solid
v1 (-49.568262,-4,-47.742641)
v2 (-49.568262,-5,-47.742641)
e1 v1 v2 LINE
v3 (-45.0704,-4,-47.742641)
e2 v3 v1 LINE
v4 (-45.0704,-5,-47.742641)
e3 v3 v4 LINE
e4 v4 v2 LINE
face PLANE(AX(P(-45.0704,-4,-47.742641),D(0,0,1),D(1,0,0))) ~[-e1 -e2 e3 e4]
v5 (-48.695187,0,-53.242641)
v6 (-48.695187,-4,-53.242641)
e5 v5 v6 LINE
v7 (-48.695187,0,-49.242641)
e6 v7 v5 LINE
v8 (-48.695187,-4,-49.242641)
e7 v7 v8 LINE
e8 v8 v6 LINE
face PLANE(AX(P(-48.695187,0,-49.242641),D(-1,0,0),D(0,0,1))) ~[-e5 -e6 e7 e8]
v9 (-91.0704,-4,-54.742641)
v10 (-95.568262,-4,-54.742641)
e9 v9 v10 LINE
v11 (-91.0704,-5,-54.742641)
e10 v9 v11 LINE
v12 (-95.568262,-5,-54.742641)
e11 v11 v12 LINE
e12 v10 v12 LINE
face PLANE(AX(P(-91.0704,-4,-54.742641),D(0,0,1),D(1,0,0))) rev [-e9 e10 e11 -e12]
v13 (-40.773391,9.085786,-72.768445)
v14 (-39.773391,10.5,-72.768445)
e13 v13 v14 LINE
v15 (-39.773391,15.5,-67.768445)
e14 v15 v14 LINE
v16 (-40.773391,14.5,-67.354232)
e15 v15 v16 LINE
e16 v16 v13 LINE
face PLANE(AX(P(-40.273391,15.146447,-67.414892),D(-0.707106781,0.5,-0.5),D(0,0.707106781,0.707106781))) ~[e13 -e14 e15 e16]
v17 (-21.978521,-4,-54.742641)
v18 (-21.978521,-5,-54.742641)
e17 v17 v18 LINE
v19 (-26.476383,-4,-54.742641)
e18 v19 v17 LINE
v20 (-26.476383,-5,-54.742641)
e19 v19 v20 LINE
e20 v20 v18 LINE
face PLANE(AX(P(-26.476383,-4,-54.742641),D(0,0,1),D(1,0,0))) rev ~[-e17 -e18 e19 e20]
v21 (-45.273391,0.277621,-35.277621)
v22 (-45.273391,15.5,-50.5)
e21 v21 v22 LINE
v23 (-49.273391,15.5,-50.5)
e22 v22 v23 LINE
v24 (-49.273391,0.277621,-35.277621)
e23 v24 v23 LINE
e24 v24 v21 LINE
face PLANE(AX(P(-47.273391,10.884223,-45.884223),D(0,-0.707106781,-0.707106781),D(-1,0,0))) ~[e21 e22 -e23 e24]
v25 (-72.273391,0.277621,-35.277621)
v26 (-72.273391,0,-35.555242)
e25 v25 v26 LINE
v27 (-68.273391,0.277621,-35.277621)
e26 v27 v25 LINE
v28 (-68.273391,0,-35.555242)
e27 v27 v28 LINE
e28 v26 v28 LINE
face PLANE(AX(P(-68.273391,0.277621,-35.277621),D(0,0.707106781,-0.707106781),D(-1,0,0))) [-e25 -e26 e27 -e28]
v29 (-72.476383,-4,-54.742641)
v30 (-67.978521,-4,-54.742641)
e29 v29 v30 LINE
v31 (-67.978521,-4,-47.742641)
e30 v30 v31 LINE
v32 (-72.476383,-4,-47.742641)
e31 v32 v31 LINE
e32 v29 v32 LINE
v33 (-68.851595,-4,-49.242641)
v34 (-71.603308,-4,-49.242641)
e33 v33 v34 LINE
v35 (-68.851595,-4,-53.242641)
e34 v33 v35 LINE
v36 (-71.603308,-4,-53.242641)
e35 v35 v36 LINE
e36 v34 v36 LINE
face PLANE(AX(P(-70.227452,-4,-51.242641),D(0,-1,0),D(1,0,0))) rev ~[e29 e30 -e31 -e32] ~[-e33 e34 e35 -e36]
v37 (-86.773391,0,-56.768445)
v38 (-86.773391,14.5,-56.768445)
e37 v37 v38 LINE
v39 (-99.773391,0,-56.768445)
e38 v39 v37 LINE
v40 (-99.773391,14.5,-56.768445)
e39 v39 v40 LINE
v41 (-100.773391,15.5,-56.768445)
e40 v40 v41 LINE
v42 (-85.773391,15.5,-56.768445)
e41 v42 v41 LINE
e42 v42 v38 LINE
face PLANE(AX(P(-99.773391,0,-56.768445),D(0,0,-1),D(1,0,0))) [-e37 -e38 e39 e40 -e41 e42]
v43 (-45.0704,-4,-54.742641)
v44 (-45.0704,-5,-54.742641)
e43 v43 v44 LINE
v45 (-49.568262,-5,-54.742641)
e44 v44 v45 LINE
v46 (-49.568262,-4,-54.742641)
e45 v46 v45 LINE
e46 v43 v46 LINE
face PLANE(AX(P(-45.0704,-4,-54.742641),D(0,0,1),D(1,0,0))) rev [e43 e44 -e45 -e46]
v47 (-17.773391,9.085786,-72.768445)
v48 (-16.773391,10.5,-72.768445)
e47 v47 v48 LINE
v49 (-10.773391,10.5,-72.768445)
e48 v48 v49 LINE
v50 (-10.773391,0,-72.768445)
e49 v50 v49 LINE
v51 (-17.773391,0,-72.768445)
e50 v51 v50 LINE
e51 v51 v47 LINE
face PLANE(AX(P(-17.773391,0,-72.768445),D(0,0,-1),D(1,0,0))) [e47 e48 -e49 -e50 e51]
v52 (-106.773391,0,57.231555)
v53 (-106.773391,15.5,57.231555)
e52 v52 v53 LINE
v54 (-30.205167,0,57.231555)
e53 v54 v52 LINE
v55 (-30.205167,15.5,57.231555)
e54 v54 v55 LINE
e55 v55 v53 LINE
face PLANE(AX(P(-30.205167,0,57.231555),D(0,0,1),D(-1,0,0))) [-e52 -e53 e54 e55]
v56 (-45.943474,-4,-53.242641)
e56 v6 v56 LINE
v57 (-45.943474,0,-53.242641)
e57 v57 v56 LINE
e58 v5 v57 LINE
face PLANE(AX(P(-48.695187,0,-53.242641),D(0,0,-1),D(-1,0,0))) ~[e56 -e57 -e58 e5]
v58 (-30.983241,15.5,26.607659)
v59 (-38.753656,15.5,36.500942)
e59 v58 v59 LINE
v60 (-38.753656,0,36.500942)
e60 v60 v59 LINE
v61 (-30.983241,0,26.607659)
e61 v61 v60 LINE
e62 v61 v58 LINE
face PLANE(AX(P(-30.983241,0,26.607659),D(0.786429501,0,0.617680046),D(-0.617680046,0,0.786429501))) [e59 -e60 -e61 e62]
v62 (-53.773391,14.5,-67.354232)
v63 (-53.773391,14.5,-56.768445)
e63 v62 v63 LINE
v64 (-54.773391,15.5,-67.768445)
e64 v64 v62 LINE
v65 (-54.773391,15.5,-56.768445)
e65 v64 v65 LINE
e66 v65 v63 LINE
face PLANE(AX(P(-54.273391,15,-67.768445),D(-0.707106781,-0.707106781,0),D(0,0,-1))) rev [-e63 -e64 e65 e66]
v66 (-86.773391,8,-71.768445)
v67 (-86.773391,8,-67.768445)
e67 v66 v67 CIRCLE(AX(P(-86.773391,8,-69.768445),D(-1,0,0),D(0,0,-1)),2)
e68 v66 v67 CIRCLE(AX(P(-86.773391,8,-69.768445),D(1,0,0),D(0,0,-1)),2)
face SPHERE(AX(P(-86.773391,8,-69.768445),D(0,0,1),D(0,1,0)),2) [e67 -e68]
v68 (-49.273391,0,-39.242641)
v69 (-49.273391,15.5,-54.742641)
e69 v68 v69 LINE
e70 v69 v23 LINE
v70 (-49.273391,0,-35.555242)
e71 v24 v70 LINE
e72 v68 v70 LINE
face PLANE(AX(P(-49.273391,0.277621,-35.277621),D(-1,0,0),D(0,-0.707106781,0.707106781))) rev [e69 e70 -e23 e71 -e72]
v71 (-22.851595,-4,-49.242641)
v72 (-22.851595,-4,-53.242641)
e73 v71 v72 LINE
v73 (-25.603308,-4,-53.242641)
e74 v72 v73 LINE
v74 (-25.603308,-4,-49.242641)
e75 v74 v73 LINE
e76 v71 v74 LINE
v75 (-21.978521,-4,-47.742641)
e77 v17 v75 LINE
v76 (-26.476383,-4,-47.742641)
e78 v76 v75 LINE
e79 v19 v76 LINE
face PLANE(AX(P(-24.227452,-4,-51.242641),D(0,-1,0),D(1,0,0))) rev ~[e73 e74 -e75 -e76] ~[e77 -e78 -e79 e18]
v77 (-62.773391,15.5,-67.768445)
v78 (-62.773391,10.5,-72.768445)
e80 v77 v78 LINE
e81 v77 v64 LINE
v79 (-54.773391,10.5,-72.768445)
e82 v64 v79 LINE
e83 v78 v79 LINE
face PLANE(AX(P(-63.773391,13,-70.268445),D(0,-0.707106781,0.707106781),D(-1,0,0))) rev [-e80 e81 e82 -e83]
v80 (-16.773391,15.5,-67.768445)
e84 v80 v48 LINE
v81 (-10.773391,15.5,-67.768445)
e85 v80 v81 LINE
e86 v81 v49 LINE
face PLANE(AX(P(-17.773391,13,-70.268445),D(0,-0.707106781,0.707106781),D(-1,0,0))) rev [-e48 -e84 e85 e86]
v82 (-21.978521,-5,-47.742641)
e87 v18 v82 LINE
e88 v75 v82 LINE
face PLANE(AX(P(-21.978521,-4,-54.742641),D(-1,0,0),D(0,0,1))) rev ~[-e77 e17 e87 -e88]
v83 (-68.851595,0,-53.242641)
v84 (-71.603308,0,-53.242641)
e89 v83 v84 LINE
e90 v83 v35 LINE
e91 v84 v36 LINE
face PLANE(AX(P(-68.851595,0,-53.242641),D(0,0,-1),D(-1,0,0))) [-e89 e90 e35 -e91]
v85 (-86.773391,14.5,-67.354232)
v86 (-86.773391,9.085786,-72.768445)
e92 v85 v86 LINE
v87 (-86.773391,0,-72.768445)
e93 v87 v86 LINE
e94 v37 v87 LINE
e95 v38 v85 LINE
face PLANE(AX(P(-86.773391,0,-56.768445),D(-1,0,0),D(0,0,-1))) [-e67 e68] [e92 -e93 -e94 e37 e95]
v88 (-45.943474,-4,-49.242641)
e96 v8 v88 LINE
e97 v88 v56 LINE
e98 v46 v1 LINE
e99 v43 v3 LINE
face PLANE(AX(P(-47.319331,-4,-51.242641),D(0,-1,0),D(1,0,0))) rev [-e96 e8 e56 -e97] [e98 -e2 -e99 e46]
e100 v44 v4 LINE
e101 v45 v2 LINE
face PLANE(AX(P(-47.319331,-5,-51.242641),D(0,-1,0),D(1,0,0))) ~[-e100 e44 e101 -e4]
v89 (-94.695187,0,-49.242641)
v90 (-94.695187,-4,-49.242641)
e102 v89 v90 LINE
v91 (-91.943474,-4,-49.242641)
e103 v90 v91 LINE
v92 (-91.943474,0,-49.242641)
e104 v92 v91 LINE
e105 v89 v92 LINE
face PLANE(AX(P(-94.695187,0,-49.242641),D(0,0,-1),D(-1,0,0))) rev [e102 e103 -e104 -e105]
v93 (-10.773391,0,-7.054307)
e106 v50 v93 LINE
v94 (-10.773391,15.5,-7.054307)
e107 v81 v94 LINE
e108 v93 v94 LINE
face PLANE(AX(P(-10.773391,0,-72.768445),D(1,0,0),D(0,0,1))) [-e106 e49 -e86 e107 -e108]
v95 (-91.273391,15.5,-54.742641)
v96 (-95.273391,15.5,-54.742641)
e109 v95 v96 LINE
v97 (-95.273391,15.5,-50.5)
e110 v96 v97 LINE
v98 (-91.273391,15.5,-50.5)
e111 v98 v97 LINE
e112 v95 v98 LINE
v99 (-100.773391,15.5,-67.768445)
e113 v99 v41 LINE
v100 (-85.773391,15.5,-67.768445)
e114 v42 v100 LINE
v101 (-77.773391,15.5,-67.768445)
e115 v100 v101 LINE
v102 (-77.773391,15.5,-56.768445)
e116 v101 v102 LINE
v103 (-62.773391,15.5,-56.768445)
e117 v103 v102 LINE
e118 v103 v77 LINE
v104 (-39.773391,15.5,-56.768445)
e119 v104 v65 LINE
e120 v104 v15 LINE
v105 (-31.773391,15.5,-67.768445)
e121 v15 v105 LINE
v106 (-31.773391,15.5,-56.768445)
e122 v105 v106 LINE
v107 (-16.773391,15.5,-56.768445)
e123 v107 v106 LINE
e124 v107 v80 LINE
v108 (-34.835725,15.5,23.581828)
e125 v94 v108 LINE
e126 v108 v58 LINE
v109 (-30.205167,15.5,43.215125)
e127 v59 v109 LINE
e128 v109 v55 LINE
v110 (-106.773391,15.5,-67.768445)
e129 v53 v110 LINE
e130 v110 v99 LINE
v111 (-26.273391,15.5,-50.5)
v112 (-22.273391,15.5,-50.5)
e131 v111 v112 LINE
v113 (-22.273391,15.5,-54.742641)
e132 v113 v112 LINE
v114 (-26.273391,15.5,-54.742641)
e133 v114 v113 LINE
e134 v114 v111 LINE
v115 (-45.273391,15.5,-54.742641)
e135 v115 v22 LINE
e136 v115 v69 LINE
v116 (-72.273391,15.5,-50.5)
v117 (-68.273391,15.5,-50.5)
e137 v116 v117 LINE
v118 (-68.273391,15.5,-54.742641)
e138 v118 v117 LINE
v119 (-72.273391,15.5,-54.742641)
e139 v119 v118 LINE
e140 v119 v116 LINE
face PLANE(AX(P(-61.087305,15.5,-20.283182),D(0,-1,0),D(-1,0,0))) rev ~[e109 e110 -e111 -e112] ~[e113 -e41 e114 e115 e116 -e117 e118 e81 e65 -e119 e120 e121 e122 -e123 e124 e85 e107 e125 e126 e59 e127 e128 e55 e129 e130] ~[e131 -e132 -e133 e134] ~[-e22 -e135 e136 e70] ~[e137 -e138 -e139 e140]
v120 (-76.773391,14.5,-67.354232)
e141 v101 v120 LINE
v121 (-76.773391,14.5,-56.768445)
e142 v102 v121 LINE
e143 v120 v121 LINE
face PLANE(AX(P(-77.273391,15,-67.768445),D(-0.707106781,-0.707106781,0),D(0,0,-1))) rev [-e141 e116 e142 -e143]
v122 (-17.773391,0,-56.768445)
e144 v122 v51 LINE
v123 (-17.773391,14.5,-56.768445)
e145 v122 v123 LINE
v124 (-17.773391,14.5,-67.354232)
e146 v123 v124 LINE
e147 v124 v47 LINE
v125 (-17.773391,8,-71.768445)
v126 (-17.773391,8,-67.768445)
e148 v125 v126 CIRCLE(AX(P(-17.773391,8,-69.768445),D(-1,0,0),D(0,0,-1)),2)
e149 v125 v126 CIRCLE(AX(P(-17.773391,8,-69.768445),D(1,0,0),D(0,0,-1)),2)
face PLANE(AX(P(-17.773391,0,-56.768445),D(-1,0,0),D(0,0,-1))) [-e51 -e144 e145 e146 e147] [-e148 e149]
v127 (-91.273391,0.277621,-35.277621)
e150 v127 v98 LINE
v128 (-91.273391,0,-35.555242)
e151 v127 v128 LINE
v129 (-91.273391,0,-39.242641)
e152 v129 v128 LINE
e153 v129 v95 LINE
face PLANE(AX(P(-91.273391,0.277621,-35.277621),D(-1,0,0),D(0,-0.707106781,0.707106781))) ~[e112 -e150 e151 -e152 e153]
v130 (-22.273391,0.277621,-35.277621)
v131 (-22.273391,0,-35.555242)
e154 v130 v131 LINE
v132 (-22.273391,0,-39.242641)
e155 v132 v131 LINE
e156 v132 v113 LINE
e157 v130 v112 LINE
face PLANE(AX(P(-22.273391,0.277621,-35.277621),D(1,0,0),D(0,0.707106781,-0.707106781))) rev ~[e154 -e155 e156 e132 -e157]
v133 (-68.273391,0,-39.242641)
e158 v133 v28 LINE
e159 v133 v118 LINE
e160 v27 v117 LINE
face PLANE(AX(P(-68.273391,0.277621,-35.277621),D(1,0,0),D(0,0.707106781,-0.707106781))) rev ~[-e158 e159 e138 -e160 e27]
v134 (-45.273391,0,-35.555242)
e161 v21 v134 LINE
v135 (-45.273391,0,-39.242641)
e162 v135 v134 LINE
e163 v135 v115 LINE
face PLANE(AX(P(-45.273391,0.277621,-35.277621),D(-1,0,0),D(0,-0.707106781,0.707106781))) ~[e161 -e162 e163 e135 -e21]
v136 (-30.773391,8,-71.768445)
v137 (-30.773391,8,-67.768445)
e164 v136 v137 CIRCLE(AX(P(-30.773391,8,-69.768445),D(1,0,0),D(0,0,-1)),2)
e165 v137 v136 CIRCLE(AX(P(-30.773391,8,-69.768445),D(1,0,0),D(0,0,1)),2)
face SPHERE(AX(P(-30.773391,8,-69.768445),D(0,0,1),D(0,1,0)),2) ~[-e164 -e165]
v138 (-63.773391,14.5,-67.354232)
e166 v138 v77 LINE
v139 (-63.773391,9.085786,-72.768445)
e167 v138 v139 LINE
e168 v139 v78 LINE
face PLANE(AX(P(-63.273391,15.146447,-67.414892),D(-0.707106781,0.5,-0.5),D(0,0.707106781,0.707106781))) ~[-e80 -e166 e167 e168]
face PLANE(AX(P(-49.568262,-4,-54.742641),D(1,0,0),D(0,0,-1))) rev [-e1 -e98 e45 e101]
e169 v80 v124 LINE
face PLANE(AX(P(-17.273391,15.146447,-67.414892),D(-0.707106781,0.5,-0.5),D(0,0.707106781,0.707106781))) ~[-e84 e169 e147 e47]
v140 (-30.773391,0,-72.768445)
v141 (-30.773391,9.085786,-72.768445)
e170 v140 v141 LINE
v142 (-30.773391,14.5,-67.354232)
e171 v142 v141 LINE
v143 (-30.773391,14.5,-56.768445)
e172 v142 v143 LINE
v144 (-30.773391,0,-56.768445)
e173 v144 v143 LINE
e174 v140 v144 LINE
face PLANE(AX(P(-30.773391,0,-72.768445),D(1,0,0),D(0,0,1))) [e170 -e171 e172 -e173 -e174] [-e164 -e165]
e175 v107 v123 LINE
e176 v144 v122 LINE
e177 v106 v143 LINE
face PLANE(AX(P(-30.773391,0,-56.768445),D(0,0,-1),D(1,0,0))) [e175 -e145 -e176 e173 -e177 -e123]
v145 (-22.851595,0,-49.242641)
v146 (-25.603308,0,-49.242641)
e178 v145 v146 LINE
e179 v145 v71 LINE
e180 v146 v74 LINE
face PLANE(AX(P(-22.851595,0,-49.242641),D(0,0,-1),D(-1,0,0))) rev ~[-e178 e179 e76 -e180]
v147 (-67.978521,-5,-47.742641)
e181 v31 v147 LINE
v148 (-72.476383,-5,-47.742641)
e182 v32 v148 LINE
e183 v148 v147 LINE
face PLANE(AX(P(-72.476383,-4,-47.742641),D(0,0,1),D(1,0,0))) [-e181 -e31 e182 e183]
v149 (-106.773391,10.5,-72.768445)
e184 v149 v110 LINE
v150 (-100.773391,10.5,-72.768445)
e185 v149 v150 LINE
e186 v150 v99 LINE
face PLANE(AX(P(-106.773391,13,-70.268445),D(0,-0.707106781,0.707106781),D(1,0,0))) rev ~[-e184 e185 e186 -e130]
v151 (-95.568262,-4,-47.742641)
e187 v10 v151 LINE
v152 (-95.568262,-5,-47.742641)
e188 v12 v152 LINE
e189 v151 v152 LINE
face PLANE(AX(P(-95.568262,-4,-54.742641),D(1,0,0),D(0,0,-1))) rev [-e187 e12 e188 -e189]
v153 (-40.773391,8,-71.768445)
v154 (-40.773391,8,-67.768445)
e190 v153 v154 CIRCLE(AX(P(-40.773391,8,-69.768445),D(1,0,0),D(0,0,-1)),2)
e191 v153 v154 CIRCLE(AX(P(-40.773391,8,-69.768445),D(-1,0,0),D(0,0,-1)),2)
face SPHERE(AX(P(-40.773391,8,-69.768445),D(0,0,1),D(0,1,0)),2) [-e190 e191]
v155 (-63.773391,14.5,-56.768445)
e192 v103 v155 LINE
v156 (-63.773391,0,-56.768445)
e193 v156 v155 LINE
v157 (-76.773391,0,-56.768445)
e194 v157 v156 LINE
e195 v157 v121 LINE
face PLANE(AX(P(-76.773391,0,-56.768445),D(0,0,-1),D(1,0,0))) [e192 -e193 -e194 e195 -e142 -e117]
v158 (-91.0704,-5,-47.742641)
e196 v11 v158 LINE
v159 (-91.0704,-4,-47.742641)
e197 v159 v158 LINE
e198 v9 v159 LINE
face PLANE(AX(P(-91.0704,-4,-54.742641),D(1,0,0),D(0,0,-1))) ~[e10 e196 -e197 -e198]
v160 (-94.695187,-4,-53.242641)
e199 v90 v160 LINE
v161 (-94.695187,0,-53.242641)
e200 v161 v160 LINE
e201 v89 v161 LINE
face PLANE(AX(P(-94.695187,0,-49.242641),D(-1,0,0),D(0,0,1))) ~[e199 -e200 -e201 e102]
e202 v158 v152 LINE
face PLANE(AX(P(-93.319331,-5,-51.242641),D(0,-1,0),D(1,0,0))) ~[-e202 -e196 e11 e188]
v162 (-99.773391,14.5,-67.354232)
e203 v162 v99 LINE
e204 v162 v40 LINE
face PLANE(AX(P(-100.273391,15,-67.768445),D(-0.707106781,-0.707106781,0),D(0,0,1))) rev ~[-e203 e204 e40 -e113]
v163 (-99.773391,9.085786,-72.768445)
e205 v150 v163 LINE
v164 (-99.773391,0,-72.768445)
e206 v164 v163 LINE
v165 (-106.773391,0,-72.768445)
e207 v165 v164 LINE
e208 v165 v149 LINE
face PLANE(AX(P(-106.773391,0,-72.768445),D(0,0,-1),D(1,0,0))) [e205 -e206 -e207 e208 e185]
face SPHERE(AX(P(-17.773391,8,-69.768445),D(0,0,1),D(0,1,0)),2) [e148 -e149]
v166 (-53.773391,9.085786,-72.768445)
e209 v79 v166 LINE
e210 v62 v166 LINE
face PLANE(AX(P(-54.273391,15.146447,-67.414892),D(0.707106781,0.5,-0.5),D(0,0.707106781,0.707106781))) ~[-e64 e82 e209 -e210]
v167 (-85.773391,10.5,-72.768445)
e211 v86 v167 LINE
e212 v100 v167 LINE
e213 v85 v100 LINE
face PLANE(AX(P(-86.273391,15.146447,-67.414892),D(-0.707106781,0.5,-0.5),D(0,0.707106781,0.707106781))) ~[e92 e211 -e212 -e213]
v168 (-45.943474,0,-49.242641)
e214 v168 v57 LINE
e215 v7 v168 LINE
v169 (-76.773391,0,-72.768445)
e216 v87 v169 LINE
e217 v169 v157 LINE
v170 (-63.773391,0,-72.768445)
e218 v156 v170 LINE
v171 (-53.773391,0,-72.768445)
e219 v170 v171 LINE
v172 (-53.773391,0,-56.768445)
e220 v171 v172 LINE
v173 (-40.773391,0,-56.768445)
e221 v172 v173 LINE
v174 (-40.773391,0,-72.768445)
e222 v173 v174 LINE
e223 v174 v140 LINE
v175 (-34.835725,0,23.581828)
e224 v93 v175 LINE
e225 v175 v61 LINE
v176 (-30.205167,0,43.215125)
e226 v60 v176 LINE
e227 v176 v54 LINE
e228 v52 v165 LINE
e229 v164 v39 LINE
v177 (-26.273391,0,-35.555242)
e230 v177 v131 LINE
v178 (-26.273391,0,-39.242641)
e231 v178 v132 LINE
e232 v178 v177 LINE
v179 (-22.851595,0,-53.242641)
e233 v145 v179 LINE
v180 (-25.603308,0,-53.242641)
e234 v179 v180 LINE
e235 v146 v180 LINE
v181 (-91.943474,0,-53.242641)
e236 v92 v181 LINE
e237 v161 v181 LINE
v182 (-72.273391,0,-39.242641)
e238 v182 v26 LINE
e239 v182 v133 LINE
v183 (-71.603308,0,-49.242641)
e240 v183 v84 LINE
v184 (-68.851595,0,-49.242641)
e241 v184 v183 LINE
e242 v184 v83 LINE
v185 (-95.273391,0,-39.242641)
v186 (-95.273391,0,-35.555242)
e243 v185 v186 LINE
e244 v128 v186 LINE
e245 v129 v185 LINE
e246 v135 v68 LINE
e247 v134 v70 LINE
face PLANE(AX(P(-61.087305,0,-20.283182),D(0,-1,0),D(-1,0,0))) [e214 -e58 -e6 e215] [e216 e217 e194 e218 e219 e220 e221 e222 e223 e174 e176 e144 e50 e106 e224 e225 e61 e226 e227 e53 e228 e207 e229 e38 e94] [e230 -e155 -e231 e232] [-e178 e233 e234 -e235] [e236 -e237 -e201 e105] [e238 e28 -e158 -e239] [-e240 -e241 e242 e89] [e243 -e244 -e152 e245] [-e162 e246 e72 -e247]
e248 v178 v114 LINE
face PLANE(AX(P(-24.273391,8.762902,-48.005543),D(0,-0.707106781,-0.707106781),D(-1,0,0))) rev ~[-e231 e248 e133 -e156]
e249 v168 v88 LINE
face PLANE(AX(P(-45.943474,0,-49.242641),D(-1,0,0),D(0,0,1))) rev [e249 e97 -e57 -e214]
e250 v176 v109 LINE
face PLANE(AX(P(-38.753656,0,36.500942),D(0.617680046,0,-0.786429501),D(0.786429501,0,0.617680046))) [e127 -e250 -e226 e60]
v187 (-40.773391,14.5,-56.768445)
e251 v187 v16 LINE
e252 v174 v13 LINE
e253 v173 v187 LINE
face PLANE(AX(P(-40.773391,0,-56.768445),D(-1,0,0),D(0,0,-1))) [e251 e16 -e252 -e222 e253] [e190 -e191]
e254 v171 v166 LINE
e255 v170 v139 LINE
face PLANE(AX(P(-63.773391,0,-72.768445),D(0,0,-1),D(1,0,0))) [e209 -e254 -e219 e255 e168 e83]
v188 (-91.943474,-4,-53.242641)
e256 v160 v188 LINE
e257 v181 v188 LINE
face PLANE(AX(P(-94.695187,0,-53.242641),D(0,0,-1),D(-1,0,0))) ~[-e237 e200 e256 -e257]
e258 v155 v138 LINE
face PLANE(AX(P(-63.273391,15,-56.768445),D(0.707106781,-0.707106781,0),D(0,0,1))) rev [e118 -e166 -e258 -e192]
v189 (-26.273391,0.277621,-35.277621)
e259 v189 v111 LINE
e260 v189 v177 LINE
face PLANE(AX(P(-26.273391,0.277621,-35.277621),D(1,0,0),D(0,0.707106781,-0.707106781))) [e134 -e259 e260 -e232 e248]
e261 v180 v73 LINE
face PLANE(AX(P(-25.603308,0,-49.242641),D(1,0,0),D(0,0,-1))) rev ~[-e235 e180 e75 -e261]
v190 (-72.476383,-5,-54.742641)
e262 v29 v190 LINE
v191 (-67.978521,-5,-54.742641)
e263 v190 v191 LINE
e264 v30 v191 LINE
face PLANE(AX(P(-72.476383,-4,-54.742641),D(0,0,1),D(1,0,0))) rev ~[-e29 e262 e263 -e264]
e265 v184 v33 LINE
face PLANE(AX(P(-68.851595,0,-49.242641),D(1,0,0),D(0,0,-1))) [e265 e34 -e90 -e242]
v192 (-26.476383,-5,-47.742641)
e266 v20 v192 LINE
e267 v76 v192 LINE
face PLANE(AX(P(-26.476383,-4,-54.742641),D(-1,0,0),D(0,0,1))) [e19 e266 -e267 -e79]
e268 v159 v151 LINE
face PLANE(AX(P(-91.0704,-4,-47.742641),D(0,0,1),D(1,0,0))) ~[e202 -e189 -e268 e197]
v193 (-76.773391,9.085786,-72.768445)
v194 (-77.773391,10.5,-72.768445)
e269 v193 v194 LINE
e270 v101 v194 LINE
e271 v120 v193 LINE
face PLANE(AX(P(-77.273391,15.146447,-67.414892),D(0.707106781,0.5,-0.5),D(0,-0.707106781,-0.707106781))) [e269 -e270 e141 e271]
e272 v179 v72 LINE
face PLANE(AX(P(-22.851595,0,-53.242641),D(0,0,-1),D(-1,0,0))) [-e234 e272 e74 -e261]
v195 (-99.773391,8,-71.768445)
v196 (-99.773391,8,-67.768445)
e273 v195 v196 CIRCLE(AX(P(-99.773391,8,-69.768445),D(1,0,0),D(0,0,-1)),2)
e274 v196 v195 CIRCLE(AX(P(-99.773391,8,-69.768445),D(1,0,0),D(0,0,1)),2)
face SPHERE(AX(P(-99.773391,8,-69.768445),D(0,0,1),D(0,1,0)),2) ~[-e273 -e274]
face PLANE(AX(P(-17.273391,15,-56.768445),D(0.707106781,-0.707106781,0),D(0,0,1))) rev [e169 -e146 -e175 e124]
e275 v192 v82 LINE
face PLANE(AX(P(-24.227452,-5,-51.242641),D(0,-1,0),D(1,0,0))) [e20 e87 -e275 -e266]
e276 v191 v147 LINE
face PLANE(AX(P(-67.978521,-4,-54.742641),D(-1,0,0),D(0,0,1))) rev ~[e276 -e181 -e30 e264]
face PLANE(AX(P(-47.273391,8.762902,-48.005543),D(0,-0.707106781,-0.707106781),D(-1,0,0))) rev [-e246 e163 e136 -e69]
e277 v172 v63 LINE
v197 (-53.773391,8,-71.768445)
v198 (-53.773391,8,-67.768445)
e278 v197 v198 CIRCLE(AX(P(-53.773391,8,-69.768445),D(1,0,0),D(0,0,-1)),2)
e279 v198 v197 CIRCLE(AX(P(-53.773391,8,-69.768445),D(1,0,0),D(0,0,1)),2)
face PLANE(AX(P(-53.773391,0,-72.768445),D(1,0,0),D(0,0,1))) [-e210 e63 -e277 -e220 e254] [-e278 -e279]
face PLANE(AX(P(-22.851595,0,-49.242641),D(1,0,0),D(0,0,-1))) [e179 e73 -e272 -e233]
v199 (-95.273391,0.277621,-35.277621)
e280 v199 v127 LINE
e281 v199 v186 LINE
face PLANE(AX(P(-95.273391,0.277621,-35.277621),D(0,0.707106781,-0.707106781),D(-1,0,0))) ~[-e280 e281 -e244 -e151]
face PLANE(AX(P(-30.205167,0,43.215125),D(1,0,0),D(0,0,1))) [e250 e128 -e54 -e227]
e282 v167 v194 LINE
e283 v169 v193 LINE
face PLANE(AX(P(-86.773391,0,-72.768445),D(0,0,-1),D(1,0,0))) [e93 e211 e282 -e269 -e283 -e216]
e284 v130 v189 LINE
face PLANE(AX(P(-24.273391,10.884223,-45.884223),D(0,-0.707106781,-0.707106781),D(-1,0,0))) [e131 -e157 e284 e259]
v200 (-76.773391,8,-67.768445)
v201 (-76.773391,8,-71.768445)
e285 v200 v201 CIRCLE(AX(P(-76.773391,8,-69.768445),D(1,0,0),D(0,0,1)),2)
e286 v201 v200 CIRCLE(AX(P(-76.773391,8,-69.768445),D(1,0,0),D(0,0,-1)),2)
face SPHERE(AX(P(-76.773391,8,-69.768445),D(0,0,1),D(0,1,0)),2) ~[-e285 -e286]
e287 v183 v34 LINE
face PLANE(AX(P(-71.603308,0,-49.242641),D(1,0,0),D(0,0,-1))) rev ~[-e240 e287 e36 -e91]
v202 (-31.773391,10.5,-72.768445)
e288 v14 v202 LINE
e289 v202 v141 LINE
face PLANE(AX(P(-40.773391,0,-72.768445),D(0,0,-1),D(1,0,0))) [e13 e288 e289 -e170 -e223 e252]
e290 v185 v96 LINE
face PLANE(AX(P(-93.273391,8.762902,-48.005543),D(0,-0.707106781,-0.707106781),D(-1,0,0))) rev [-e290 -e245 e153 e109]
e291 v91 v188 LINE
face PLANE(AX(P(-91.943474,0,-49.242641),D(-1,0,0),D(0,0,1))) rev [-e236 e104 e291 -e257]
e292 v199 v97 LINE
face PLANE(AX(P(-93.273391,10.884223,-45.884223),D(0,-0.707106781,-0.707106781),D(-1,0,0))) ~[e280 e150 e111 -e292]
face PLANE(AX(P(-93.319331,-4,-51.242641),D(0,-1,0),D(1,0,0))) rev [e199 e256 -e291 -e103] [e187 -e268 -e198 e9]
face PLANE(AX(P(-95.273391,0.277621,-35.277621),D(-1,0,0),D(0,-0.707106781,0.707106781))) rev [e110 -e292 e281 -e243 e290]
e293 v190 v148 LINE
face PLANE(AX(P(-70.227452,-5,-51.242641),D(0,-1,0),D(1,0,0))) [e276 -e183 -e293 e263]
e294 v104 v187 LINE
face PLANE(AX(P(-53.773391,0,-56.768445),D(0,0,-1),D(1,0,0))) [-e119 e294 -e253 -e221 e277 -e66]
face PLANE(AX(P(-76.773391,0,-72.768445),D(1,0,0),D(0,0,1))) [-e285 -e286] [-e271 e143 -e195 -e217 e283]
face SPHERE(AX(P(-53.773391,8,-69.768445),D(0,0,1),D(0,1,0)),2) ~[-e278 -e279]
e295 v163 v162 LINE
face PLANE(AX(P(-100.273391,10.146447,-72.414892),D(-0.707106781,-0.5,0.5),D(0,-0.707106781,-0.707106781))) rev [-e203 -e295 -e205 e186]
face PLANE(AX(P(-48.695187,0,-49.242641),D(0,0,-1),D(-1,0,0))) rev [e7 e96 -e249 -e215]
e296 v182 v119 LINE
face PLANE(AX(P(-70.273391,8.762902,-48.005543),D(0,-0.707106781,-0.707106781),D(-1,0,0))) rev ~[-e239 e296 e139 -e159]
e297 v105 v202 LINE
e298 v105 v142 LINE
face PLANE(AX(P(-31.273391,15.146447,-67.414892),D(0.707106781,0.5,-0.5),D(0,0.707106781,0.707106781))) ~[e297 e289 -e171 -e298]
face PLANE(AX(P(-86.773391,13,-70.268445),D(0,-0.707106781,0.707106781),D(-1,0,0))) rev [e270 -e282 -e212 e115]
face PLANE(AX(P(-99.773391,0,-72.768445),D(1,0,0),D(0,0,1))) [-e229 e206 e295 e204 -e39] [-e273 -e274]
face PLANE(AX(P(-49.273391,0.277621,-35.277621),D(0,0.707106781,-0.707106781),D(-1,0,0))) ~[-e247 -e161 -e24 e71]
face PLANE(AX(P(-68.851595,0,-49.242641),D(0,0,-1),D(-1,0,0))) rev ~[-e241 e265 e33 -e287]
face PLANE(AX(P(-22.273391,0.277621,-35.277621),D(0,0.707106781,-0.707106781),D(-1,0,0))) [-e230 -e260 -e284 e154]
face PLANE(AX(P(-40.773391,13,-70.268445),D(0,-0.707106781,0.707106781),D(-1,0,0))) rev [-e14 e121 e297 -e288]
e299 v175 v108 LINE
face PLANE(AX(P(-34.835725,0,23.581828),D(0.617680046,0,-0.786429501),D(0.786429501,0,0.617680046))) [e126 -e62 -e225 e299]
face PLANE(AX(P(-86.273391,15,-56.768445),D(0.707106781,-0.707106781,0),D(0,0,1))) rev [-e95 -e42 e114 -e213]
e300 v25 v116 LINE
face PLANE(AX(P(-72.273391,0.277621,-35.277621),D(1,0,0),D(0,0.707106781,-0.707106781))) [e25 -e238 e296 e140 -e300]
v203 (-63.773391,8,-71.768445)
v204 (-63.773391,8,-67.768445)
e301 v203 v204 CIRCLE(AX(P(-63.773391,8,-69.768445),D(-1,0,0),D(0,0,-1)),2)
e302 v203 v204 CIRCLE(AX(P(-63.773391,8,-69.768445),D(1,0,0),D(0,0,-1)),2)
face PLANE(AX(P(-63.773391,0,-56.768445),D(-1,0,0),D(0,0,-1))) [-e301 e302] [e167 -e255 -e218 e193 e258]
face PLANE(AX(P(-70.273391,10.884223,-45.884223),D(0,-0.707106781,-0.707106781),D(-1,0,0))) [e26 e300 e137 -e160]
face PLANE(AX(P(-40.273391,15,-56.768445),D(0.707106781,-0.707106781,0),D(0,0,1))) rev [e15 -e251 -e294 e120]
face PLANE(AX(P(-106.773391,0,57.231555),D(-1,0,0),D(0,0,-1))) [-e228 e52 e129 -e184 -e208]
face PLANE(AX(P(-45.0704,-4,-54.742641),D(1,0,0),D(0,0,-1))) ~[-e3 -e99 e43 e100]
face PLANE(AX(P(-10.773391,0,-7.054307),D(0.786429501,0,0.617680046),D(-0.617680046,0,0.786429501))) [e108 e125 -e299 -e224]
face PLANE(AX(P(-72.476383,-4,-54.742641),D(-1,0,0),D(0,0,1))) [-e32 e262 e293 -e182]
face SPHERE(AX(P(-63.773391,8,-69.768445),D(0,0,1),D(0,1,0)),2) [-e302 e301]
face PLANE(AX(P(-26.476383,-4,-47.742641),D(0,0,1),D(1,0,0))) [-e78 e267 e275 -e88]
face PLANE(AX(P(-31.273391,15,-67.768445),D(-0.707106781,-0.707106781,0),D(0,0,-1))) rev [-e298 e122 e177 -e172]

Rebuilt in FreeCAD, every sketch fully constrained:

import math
import FreeCAD as App
import Part
import Sketcher

V = App.Vector
Q = App.Units.Quantity


def edges_at(feature, points):
    """Names of the edges that pass closest to the given points."""
    edges = feature.Shape.Edges
    near = lambda p: min(range(len(edges)), key=lambda i: edges[i].distToShape(Part.Vertex(*p))[0])
    return sorted({f"Edge{near(p) + 1}" for p in points})

doc = App.newDocument("Part")
body = doc.addObject("PartDesign::Body", "Body")

# Sketch on XZ plane
sketch1 = doc.addObject("Sketcher::SketchObject", "Sketch")
body.addObject(sketch1)
sketch1.AttachmentSupport = (doc.XZ_Plane, [""])
sketch1.MapMode = "FlatFace"
sketch1.addGeometry([
    Part.LineSegment(V(-99.8, -72.8, 0), V(-106.8, -72.8, 0)),  # 0
    Part.LineSegment(V(-106.8, -72.8, 0), V(-106.8, 57.2, 0)),  # 1
    Part.LineSegment(V(-106.8, 57.2, 0), V(-30.2, 57.2, 0)),  # 2
    Part.LineSegment(V(-30.2, 57.2, 0), V(-30.2, 43.2, 0)),  # 3
    Part.LineSegment(V(-30.2, 43.2, 0), V(-38.8, 36.5, 0)),  # 4
    Part.LineSegment(V(-38.8, 36.5, 0), V(-31, 26.6, 0)),  # 5
    Part.LineSegment(V(-31, 26.6, 0), V(-34.8, 23.6, 0)),  # 6
    Part.LineSegment(V(-34.8, 23.6, 0), V(-10.8, -7.1, 0)),  # 7
    Part.LineSegment(V(-10.8, -7.1, 0), V(-10.8, -72.8, 0)),  # 8
    Part.LineSegment(V(-10.8, -72.8, 0), V(-17.8, -72.8, 0)),  # 9
    Part.LineSegment(V(-17.8, -72.8, 0), V(-17.8, -56.8, 0)),  # 10
    Part.LineSegment(V(-17.8, -56.8, 0), V(-30.8, -56.8, 0)),  # 11
    Part.LineSegment(V(-30.8, -56.8, 0), V(-30.8, -72.8, 0)),  # 12
    Part.LineSegment(V(-30.8, -72.8, 0), V(-40.8, -72.8, 0)),  # 13
    Part.LineSegment(V(-40.8, -72.8, 0), V(-40.8, -56.8, 0)),  # 14
    Part.LineSegment(V(-40.8, -56.8, 0), V(-53.8, -56.8, 0)),  # 15
    Part.LineSegment(V(-53.8, -56.8, 0), V(-53.8, -72.8, 0)),  # 16
    Part.LineSegment(V(-53.8, -72.8, 0), V(-63.8, -72.8, 0)),  # 17
    Part.LineSegment(V(-63.8, -72.8, 0), V(-63.8, -56.8, 0)),  # 18
    Part.LineSegment(V(-63.8, -56.8, 0), V(-76.8, -56.8, 0)),  # 19
    Part.LineSegment(V(-76.8, -56.8, 0), V(-76.8, -72.8, 0)),  # 20
    Part.LineSegment(V(-76.8, -72.8, 0), V(-86.8, -72.8, 0)),  # 21
    Part.LineSegment(V(-86.8, -72.8, 0), V(-86.8, -56.8, 0)),  # 22
    Part.LineSegment(V(-86.8, -56.8, 0), V(-99.8, -56.8, 0)),  # 23
    Part.LineSegment(V(-99.8, -56.8, 0), V(-99.8, -72.8, 0)),  # 24
], False)
sketch1.addConstraint([
    Sketcher.Constraint("Coincident", 0, 2, 1, 1),
    Sketcher.Constraint("Coincident", 1, 2, 2, 1),
    Sketcher.Constraint("Coincident", 2, 2, 3, 1),
    Sketcher.Constraint("Coincident", 3, 2, 4, 1),
    Sketcher.Constraint("Coincident", 4, 2, 5, 1),
    Sketcher.Constraint("Coincident", 5, 2, 6, 1),
    Sketcher.Constraint("Coincident", 6, 2, 7, 1),
    Sketcher.Constraint("Coincident", 7, 2, 8, 1),
    Sketcher.Constraint("Coincident", 8, 2, 9, 1),
    Sketcher.Constraint("Coincident", 9, 2, 10, 1),
    Sketcher.Constraint("Coincident", 10, 2, 11, 1),
    Sketcher.Constraint("Coincident", 11, 2, 12, 1),
    Sketcher.Constraint("Coincident", 12, 2, 13, 1),
    Sketcher.Constraint("Coincident", 13, 2, 14, 1),
    Sketcher.Constraint("Coincident", 14, 2, 15, 1),
    Sketcher.Constraint("Coincident", 15, 2, 16, 1),
    Sketcher.Constraint("Coincident", 16, 2, 17, 1),
    Sketcher.Constraint("Coincident", 17, 2, 18, 1),
    Sketcher.Constraint("Coincident", 18, 2, 19, 1),
    Sketcher.Constraint("Coincident", 19, 2, 20, 1),
    Sketcher.Constraint("Coincident", 20, 2, 21, 1),
    Sketcher.Constraint("Coincident", 21, 2, 22, 1),
    Sketcher.Constraint("Coincident", 22, 2, 23, 1),
    Sketcher.Constraint("Coincident", 23, 2, 24, 1),
    Sketcher.Constraint("Coincident", 24, 2, 0, 1),
    Sketcher.Constraint("Horizontal", 0),
    Sketcher.Constraint("Vertical", 1),
    Sketcher.Constraint("Horizontal", 2),
    Sketcher.Constraint("Vertical", 3),
    Sketcher.Constraint("Vertical", 8),
    Sketcher.Constraint("Horizontal", 9),
    Sketcher.Constraint("Vertical", 10),
    Sketcher.Constraint("Horizontal", 11),
    Sketcher.Constraint("Vertical", 12),
    Sketcher.Constraint("Horizontal", 13),
    Sketcher.Constraint("Vertical", 14),
    Sketcher.Constraint("Horizontal", 15),
    Sketcher.Constraint("Vertical", 16),
    Sketcher.Constraint("Horizontal", 17),
    Sketcher.Constraint("Vertical", 18),
    Sketcher.Constraint("Horizontal", 19),
    Sketcher.Constraint("Vertical", 20),
    Sketcher.Constraint("Horizontal", 21),
    Sketcher.Constraint("Vertical", 22),
    Sketcher.Constraint("Horizontal", 23),
    Sketcher.Constraint("Vertical", 24),
    Sketcher.Constraint("Perpendicular", 4, 5),
    Sketcher.Constraint("Perpendicular", 5, 6),
    Sketcher.Constraint("Perpendicular", 6, 7),
    Sketcher.Constraint("Horizontal", 0, 2, 8, 2),
    Sketcher.Constraint("Horizontal", 9, 2, 12, 2),
    Sketcher.Constraint("Horizontal", 11, 2, 14, 2),
    Sketcher.Constraint("Horizontal", 13, 2, 16, 2),
    Sketcher.Constraint("Horizontal", 15, 2, 18, 2),
    Sketcher.Constraint("Horizontal", 17, 2, 20, 2),
    Sketcher.Constraint("Horizontal", 19, 2, 22, 2),
    Sketcher.Constraint("Equal", 0, 9),
    Sketcher.Constraint("Equal", 11, 15),
    Sketcher.Constraint("Equal", 13, 17),
    Sketcher.Constraint("Equal", 15, 19),
    Sketcher.Constraint("Equal", 17, 21),
    Sketcher.Constraint("Equal", 19, 23),
    Sketcher.Constraint("DistanceX", 0, 2, 0, 1, Q("7 mm")),
    Sketcher.Constraint("DistanceX", 11, 2, 11, 1, Q("13 mm")),
    Sketcher.Constraint("DistanceX", 13, 2, 13, 1, Q("10 mm")),
    Sketcher.Constraint("DistanceY", 1, 1, 1, 2, Q("130 mm")),
    Sketcher.Constraint("DistanceY", 10, 1, 10, 2, Q("16 mm")),
    Sketcher.Constraint("Distance", 4, Q("10.87 mm")),
    Sketcher.Constraint("Distance", 5, Q("12.58 mm")),
    Sketcher.Constraint("DistanceY", 3, 2, 3, 1, Q("14.01643 mm")),
    Sketcher.Constraint("DistanceY", 8, 2, 8, 1, Q("65.714139 mm")),
    Sketcher.Constraint("DistanceX", 2, 1, 2, 2, Q("76.568224 mm")),
    Sketcher.Constraint("DistanceX", 0, 2, -1, 1, Q("106.773391 mm")),
    Sketcher.Constraint("DistanceX", 5, 2, -1, 1, Q("30.983241 mm")),
    Sketcher.Constraint("DistanceY", -1, 1, 5, 2, Q("26.607659 mm")),
])
pad1 = doc.addObject("PartDesign::Pad", "Pad")
body.addObject(pad1)
pad1.Profile = sketch1
pad1.Length = 15.5
pad1.Reversed = True

# Sketch on YZ plane
sketch2 = doc.addObject("Sketcher::SketchObject", "Sketch001")
body.addObject(sketch2)
sketch2.AttachmentSupport = (doc.YZ_Plane, [""])
sketch2.MapMode = "FlatFace"
sketch2.AttachmentOffset = App.Placement(V(0, 0, -99.773391), App.Rotation())
sketch2.addGeometry([
    Part.LineSegment(V(8, -67.8, 0), V(8, -71.8, 0)),
    Part.ArcOfCircle(Part.Circle(V(8, -69.8, 0), V(0, 0, 1), 2), math.radians(-90), math.radians(90)),
], False)
sketch2.addGeometry(Part.LineSegment(V(8, -67.8, 0), V(8, -71.8, 0)), True)  # axis
sketch2.addConstraint([
    Sketcher.Constraint("Coincident", 0, 1, 1, 2),
    Sketcher.Constraint("Coincident", 1, 1, 0, 2),
    Sketcher.Constraint("Vertical", 0),
    Sketcher.Constraint("Vertical", 2),
    Sketcher.Constraint("Coincident", 2, 1, 0, 1),
    Sketcher.Constraint("Vertical", 1, 3, 0, 1),
    Sketcher.Constraint("Equal", 0, 2),
    Sketcher.Constraint("Radius", 1, Q("2 mm")),
    Sketcher.Constraint("DistanceX", -1, 1, 1, 3, Q("8 mm")),
    Sketcher.Constraint("DistanceY", 1, 3, -1, 1, Q("69.768445 mm")),
])
revolution = doc.addObject("PartDesign::Revolution", "Revolution")
body.addObject(revolution)
revolution.Profile = sketch2
revolution.ReferenceAxis = (sketch2, ["Axis0"])
revolution.Angle = 360
doc.recompute()

datumplane = doc.addObject("PartDesign::Plane", "DatumPlane")
body.addObject(datumplane)
datumplane.AttachmentSupport = (doc.YZ_Plane, [""])
datumplane.MapMode = "FlatFace"
datumplane.AttachmentOffset = App.Placement(V(0, 0, -93.273391), App.Rotation())
mirrored = doc.addObject("PartDesign::Mirrored", "Mirrored")
body.addObject(mirrored)
mirrored.Originals = [revolution]
mirrored.MirrorPlane = (datumplane, [""])
body.Tip = mirrored
doc.recompute()

datumplane2 = doc.addObject("PartDesign::Plane", "DatumPlane001")
body.addObject(datumplane2)
datumplane2.AttachmentSupport = (doc.YZ_Plane, [""])
datumplane2.MapMode = "FlatFace"
datumplane2.AttachmentOffset = App.Placement(V(0, 0, -81.773391), App.Rotation())
mirrored2 = doc.addObject("PartDesign::Mirrored", "Mirrored001")
body.addObject(mirrored2)
mirrored2.Originals = [revolution]
mirrored2.MirrorPlane = (datumplane2, [""])
body.Tip = mirrored2

# Sketch on YZ plane
sketch3 = doc.addObject("Sketcher::SketchObject", "Sketch002")
body.addObject(sketch3)
sketch3.AttachmentSupport = (doc.YZ_Plane, [""])
sketch3.MapMode = "FlatFace"
sketch3.AttachmentOffset = App.Placement(V(0, 0, -76.773391), App.Rotation())
sketch3.addGeometry([
    Part.LineSegment(V(8, -67.8, 0), V(8, -71.8, 0)),
    Part.ArcOfCircle(Part.Circle(V(8, -69.8, 0), V(0, 0, 1), 2), math.radians(-90), math.radians(90)),
], False)
sketch3.addGeometry(Part.LineSegment(V(8, -67.8, 0), V(8, -71.8, 0)), True)  # axis
sketch3.addConstraint([
    Sketcher.Constraint("Coincident", 0, 1, 1, 2),
    Sketcher.Constraint("Coincident", 1, 1, 0, 2),
    Sketcher.Constraint("Vertical", 0),
    Sketcher.Constraint("Vertical", 2),
    Sketcher.Constraint("Coincident", 2, 1, 0, 1),
    Sketcher.Constraint("Vertical", 1, 3, 0, 1),
    Sketcher.Constraint("Equal", 0, 2),
    Sketcher.Constraint("Radius", 1, Q("2 mm")),
    Sketcher.Constraint("DistanceX", -1, 1, 1, 3, Q("8 mm")),
    Sketcher.Constraint("DistanceY", 1, 3, -1, 1, Q("69.768445 mm")),
])
revolution2 = doc.addObject("PartDesign::Revolution", "Revolution001")
body.addObject(revolution2)
revolution2.Profile = sketch3
revolution2.ReferenceAxis = (sketch3, ["Axis0"])
revolution2.Angle = 360
doc.recompute()

datumplane3 = doc.addObject("PartDesign::Plane", "DatumPlane002")
body.addObject(datumplane3)
datumplane3.AttachmentSupport = (doc.YZ_Plane, [""])
datumplane3.MapMode = "FlatFace"
datumplane3.AttachmentOffset = App.Placement(V(0, 0, -58.773391), App.Rotation())
mirrored3 = doc.addObject("PartDesign::Mirrored", "Mirrored002")
body.addObject(mirrored3)
mirrored3.Originals = [revolution]
mirrored3.MirrorPlane = (datumplane3, [""])
body.Tip = mirrored3

# Sketch on YZ plane
sketch4 = doc.addObject("Sketcher::SketchObject", "Sketch003")
body.addObject(sketch4)
sketch4.AttachmentSupport = (doc.YZ_Plane, [""])
sketch4.MapMode = "FlatFace"
sketch4.AttachmentOffset = App.Placement(V(0, 0, -53.773391), App.Rotation())
sketch4.addGeometry([
    Part.LineSegment(V(8, -67.8, 0), V(8, -71.8, 0)),
    Part.ArcOfCircle(Part.Circle(V(8, -69.8, 0), V(0, 0, 1), 2), math.radians(-90), math.radians(90)),
], False)
sketch4.addGeometry(Part.LineSegment(V(8, -67.8, 0), V(8, -71.8, 0)), True)  # axis
sketch4.addConstraint([
    Sketcher.Constraint("Coincident", 0, 1, 1, 2),
    Sketcher.Constraint("Coincident", 1, 1, 0, 2),
    Sketcher.Constraint("Vertical", 0),
    Sketcher.Constraint("Vertical", 2),
    Sketcher.Constraint("Coincident", 2, 1, 0, 1),
    Sketcher.Constraint("Vertical", 1, 3, 0, 1),
    Sketcher.Constraint("Equal", 0, 2),
    Sketcher.Constraint("Radius", 1, Q("2 mm")),
    Sketcher.Constraint("DistanceX", -1, 1, 1, 3, Q("8 mm")),
    Sketcher.Constraint("DistanceY", 1, 3, -1, 1, Q("69.768445 mm")),
])
revolution3 = doc.addObject("PartDesign::Revolution", "Revolution002")
body.addObject(revolution3)
revolution3.Profile = sketch4
revolution3.ReferenceAxis = (sketch4, ["Axis0"])
revolution3.Angle = 360

# Sketch on YZ plane
sketch5 = doc.addObject("Sketcher::SketchObject", "Sketch004")
body.addObject(sketch5)
sketch5.AttachmentSupport = (doc.YZ_Plane, [""])
sketch5.MapMode = "FlatFace"
sketch5.AttachmentOffset = App.Placement(V(0, 0, -40.773391), App.Rotation())
sketch5.addGeometry([
    Part.LineSegment(V(8, -71.8, 0), V(8, -67.8, 0)),
    Part.ArcOfCircle(Part.Circle(V(8, -69.8, 0), V(0, 0, 1), 2), math.radians(-90), math.radians(90)),
], False)
sketch5.addGeometry(Part.LineSegment(V(8, -71.8, 0), V(8, -67.8, 0)), True)  # axis
sketch5.addConstraint([
    Sketcher.Constraint("Coincident", 0, 1, 1, 1),
    Sketcher.Constraint("Coincident", 1, 2, 0, 2),
    Sketcher.Constraint("Vertical", 0),
    Sketcher.Constraint("Vertical", 2),
    Sketcher.Constraint("Coincident", 2, 1, 0, 1),
    Sketcher.Constraint("Vertical", 1, 3, 0, 1),
    Sketcher.Constraint("Equal", 0, 2),
    Sketcher.Constraint("Radius", 1, Q("2 mm")),
    Sketcher.Constraint("DistanceX", -1, 1, 1, 3, Q("8 mm")),
    Sketcher.Constraint("DistanceY", 1, 3, -1, 1, Q("69.768445 mm")),
])
revolution4 = doc.addObject("PartDesign::Revolution", "Revolution003")
body.addObject(revolution4)
revolution4.Profile = sketch5
revolution4.ReferenceAxis = (sketch5, ["Axis0"])
revolution4.Angle = 360

# Sketch on YZ plane
sketch6 = doc.addObject("Sketcher::SketchObject", "Sketch005")
body.addObject(sketch6)
sketch6.AttachmentSupport = (doc.YZ_Plane, [""])
sketch6.MapMode = "FlatFace"
sketch6.AttachmentOffset = App.Placement(V(0, 0, -30.773391), App.Rotation())
sketch6.addGeometry([
    Part.LineSegment(V(8, -67.8, 0), V(8, -71.8, 0)),
    Part.ArcOfCircle(Part.Circle(V(8, -69.8, 0), V(0, 0, 1), 2), math.radians(-90), math.radians(90)),
], False)
sketch6.addGeometry(Part.LineSegment(V(8, -67.8, 0), V(8, -71.8, 0)), True)  # axis
sketch6.addConstraint([
    Sketcher.Constraint("Coincident", 0, 1, 1, 2),
    Sketcher.Constraint("Coincident", 1, 1, 0, 2),
    Sketcher.Constraint("Vertical", 0),
    Sketcher.Constraint("Vertical", 2),
    Sketcher.Constraint("Coincident", 2, 1, 0, 1),
    Sketcher.Constraint("Vertical", 1, 3, 0, 1),
    Sketcher.Constraint("Equal", 0, 2),
    Sketcher.Constraint("Radius", 1, Q("2 mm")),
    Sketcher.Constraint("DistanceX", -1, 1, 1, 3, Q("8 mm")),
    Sketcher.Constraint("DistanceY", 1, 3, -1, 1, Q("69.768445 mm")),
])
revolution5 = doc.addObject("PartDesign::Revolution", "Revolution004")
body.addObject(revolution5)
revolution5.Profile = sketch6
revolution5.ReferenceAxis = (sketch6, ["Axis0"])
revolution5.Angle = 360

# Sketch on an angled plane
sketch7 = doc.addObject("Sketcher::SketchObject", "Sketch006")
body.addObject(sketch7)
sketch7.Placement = App.Placement(V(0, -17.5, -17.5), App.Rotation(V(-1, 0, 0), V(0, 0.707106781, -0.707106781), V(0, -0.707106781, -0.707106781), "ZXY"))
sketch7.addGeometry([
    Part.LineSegment(V(22.3, 55.1, 0), V(22.3, 25.1, 0)),
    Part.LineSegment(V(22.3, 25.1, 0), V(26.3, 25.1, 0)),
    Part.LineSegment(V(26.3, 25.1, 0), V(26.3, 55.1, 0)),
    Part.LineSegment(V(26.3, 55.1, 0), V(22.3, 55.1, 0)),
], False)
sketch7.addConstraint([
    Sketcher.Constraint("Coincident", 0, 2, 1, 1),
    Sketcher.Constraint("Coincident", 1, 2, 2, 1),
    Sketcher.Constraint("Coincident", 2, 2, 3, 1),
    Sketcher.Constraint("Coincident", 3, 2, 0, 1),
    Sketcher.Constraint("Vertical", 0),
    Sketcher.Constraint("Horizontal", 1),
    Sketcher.Constraint("Vertical", 2),
    Sketcher.Constraint("Horizontal", 3),
    Sketcher.Constraint("DistanceX", 1, 1, 1, 2, Q("4 mm")),
    Sketcher.Constraint("DistanceY", 0, 2, 0, 1, Q("30 mm")),
    Sketcher.Constraint("DistanceX", -1, 1, 0, 2, Q("22.273391 mm")),
    Sketcher.Constraint("DistanceY", -1, 1, 0, 2, Q("25.141353 mm")),
])
pocket1 = doc.addObject("PartDesign::Pocket", "Pocket")
body.addObject(pocket1)
pocket1.Profile = sketch7
pocket1.Length = 3
pocket1.Reversed = True
doc.recompute()

datumplane4 = doc.addObject("PartDesign::Plane", "DatumPlane003")
body.addObject(datumplane4)
datumplane4.AttachmentSupport = (doc.YZ_Plane, [""])
datumplane4.MapMode = "FlatFace"
datumplane4.AttachmentOffset = App.Placement(V(0, 0, -35.773391), App.Rotation())
mirrored4 = doc.addObject("PartDesign::Mirrored", "Mirrored003")
body.addObject(mirrored4)
mirrored4.Originals = [pocket1]
mirrored4.MirrorPlane = (datumplane4, [""])
body.Tip = mirrored4
doc.recompute()

datumplane5 = doc.addObject("PartDesign::Plane", "DatumPlane004")
body.addObject(datumplane5)
datumplane5.AttachmentSupport = (doc.YZ_Plane, [""])
datumplane5.MapMode = "FlatFace"
datumplane5.AttachmentOffset = App.Placement(V(0, 0, -58.773391), App.Rotation())
mirrored5 = doc.addObject("PartDesign::Mirrored", "Mirrored004")
body.addObject(mirrored5)
mirrored5.Originals = [pocket1]
mirrored5.MirrorPlane = (datumplane5, [""])
body.Tip = mirrored5

# Sketch on an angled plane
sketch8 = doc.addObject("Sketcher::SketchObject", "Sketch007")
body.addObject(sketch8)
sketch8.Placement = App.Placement(V(-46, -17.5, -17.5), App.Rotation(V(-1, 0, 0), V(0, 0.707106781, -0.707106781), V(0, -0.707106781, -0.707106781), "ZXY"))
sketch8.addGeometry([
    Part.LineSegment(V(22.3, 55.1, 0), V(22.3, 25.1, 0)),
    Part.LineSegment(V(22.3, 25.1, 0), V(26.3, 25.1, 0)),
    Part.LineSegment(V(26.3, 25.1, 0), V(26.3, 55.1, 0)),
    Part.LineSegment(V(26.3, 55.1, 0), V(22.3, 55.1, 0)),
], False)
sketch8.addConstraint([
    Sketcher.Constraint("Coincident", 0, 2, 1, 1),
    Sketcher.Constraint("Coincident", 1, 2, 2, 1),
    Sketcher.Constraint("Coincident", 2, 2, 3, 1),
    Sketcher.Constraint("Coincident", 3, 2, 0, 1),
    Sketcher.Constraint("Vertical", 0),
    Sketcher.Constraint("Horizontal", 1),
    Sketcher.Constraint("Vertical", 2),
    Sketcher.Constraint("Horizontal", 3),
    Sketcher.Constraint("DistanceX", 1, 1, 1, 2, Q("4 mm")),
    Sketcher.Constraint("DistanceY", 0, 2, 0, 1, Q("30 mm")),
    Sketcher.Constraint("DistanceX", -1, 1, 0, 2, Q("22.273391 mm")),
    Sketcher.Constraint("DistanceY", -1, 1, 0, 2, Q("25.141353 mm")),
])
pocket2 = doc.addObject("PartDesign::Pocket", "Pocket001")
body.addObject(pocket2)
pocket2.Profile = sketch8
pocket2.Length = 3
pocket2.Reversed = True

# Sketch on XZ plane
sketch9 = doc.addObject("Sketcher::SketchObject", "Sketch008")
body.addObject(sketch9)
sketch9.AttachmentSupport = (doc.XZ_Plane, [""])
sketch9.MapMode = "FlatFace"
sketch9.addGeometry([
    Part.LineSegment(V(-22.9, -53.2, 0), V(-22.9, -49.2, 0)),
    Part.LineSegment(V(-22.9, -49.2, 0), V(-25.6, -49.2, 0)),
    Part.LineSegment(V(-25.6, -49.2, 0), V(-25.6, -53.2, 0)),
    Part.LineSegment(V(-25.6, -53.2, 0), V(-22.9, -53.2, 0)),
], False)
sketch9.addConstraint([
    Sketcher.Constraint("Coincident", 0, 2, 1, 1),
    Sketcher.Constraint("Coincident", 1, 2, 2, 1),
    Sketcher.Constraint("Coincident", 2, 2, 3, 1),
    Sketcher.Constraint("Coincident", 3, 2, 0, 1),
    Sketcher.Constraint("Vertical", 0),
    Sketcher.Constraint("Horizontal", 1),
    Sketcher.Constraint("Vertical", 2),
    Sketcher.Constraint("Horizontal", 3),
    Sketcher.Constraint("DistanceY", 0, 1, 0, 2, Q("4 mm")),
    Sketcher.Constraint("DistanceX", 1, 2, 1, 1, Q("2.751713 mm")),
    Sketcher.Constraint("DistanceY", 0, 2, -1, 1, Q("49.242641 mm")),
    Sketcher.Constraint("DistanceX", 1, 2, -1, 1, Q("25.603308 mm")),
])
pad2 = doc.addObject("PartDesign::Pad", "Pad001")
body.addObject(pad2)
pad2.Profile = sketch9
pad2.Length = 4

# Sketch on XZ plane
sketch10 = doc.addObject("Sketcher::SketchObject", "Sketch009")
body.addObject(sketch10)
sketch10.AttachmentSupport = (doc.XZ_Plane, [""])
sketch10.MapMode = "FlatFace"
sketch10.AttachmentOffset = App.Placement(V(0, 0, 4), App.Rotation())
sketch10.addGeometry([
    Part.LineSegment(V(-26.5, -47.7, 0), V(-26.5, -54.7, 0)),
    Part.LineSegment(V(-26.5, -54.7, 0), V(-22, -54.7, 0)),
    Part.LineSegment(V(-22, -54.7, 0), V(-22, -47.7, 0)),
    Part.LineSegment(V(-22, -47.7, 0), V(-26.5, -47.7, 0)),
], False)
sketch10.addConstraint([
    Sketcher.Constraint("Coincident", 0, 2, 1, 1),
    Sketcher.Constraint("Coincident", 1, 2, 2, 1),
    Sketcher.Constraint("Coincident", 2, 2, 3, 1),
    Sketcher.Constraint("Coincident", 3, 2, 0, 1),
    Sketcher.Constraint("Vertical", 0),
    Sketcher.Constraint("Horizontal", 1),
    Sketcher.Constraint("Vertical", 2),
    Sketcher.Constraint("Horizontal", 3),
    Sketcher.Constraint("DistanceY", 0, 2, 0, 1, Q("7 mm")),
    Sketcher.Constraint("DistanceX", 1, 1, 1, 2, Q("4.497862 mm")),
    Sketcher.Constraint("DistanceY", 0, 2, -1, 1, Q("54.742641 mm")),
    Sketcher.Constraint("DistanceX", 1, 2, -1, 1, Q("21.978521 mm")),
])
pad3 = doc.addObject("PartDesign::Pad", "Pad002")
body.addObject(pad3)
pad3.Profile = sketch10
pad3.Length = 1
doc.recompute()

datumplane6 = doc.addObject("PartDesign::Plane", "DatumPlane005")
body.addObject(datumplane6)
datumplane6.AttachmentSupport = (doc.YZ_Plane, [""])
datumplane6.MapMode = "FlatFace"
datumplane6.AttachmentOffset = App.Placement(V(0, 0, -35.773391), App.Rotation())
mirrored6 = doc.addObject("PartDesign::Mirrored", "Mirrored005")
body.addObject(mirrored6)
mirrored6.Originals = [pad2, pad3]
mirrored6.MirrorPlane = (datumplane6, [""])
body.Tip = mirrored6
doc.recompute()

datumplane7 = doc.addObject("PartDesign::Plane", "DatumPlane006")
body.addObject(datumplane7)
datumplane7.AttachmentSupport = (doc.YZ_Plane, [""])
datumplane7.MapMode = "FlatFace"
datumplane7.AttachmentOffset = App.Placement(V(0, 0, -58.773391), App.Rotation())
mirrored7 = doc.addObject("PartDesign::Mirrored", "Mirrored006")
body.addObject(mirrored7)
mirrored7.Originals = [pad2, pad3]
mirrored7.MirrorPlane = (datumplane7, [""])
body.Tip = mirrored7

# Sketch on XZ plane
sketch11 = doc.addObject("Sketcher::SketchObject", "Sketch010")
body.addObject(sketch11)
sketch11.AttachmentSupport = (doc.XZ_Plane, [""])
sketch11.MapMode = "FlatFace"
sketch11.addGeometry([
    Part.LineSegment(V(-68.9, -53.2, 0), V(-68.9, -49.2, 0)),
    Part.LineSegment(V(-68.9, -49.2, 0), V(-71.6, -49.2, 0)),
    Part.LineSegment(V(-71.6, -49.2, 0), V(-71.6, -53.2, 0)),
    Part.LineSegment(V(-71.6, -53.2, 0), V(-68.9, -53.2, 0)),
], False)
sketch11.addConstraint([
    Sketcher.Constraint("Coincident", 0, 2, 1, 1),
    Sketcher.Constraint("Coincident", 1, 2, 2, 1),
    Sketcher.Constraint("Coincident", 2, 2, 3, 1),
    Sketcher.Constraint("Coincident", 3, 2, 0, 1),
    Sketcher.Constraint("Vertical", 0),
    Sketcher.Constraint("Horizontal", 1),
    Sketcher.Constraint("Vertical", 2),
    Sketcher.Constraint("Horizontal", 3),
    Sketcher.Constraint("DistanceY", 0, 1, 0, 2, Q("4 mm")),
    Sketcher.Constraint("DistanceX", 1, 2, 1, 1, Q("2.751713 mm")),
    Sketcher.Constraint("DistanceY", 0, 2, -1, 1, Q("49.242641 mm")),
    Sketcher.Constraint("DistanceX", 1, 2, -1, 1, Q("71.603308 mm")),
])
pad4 = doc.addObject("PartDesign::Pad", "Pad003")
body.addObject(pad4)
pad4.Profile = sketch11
pad4.Length = 4

# Sketch on XZ plane
sketch12 = doc.addObject("Sketcher::SketchObject", "Sketch011")
body.addObject(sketch12)
sketch12.AttachmentSupport = (doc.XZ_Plane, [""])
sketch12.MapMode = "FlatFace"
sketch12.AttachmentOffset = App.Placement(V(0, 0, 4), App.Rotation())
sketch12.addGeometry([
    Part.LineSegment(V(-72.5, -47.7, 0), V(-72.5, -54.7, 0)),
    Part.LineSegment(V(-72.5, -54.7, 0), V(-68, -54.7, 0)),
    Part.LineSegment(V(-68, -54.7, 0), V(-68, -47.7, 0)),
    Part.LineSegment(V(-68, -47.7, 0), V(-72.5, -47.7, 0)),
], False)
sketch12.addConstraint([
    Sketcher.Constraint("Coincident", 0, 2, 1, 1),
    Sketcher.Constraint("Coincident", 1, 2, 2, 1),
    Sketcher.Constraint("Coincident", 2, 2, 3, 1),
    Sketcher.Constraint("Coincident", 3, 2, 0, 1),
    Sketcher.Constraint("Vertical", 0),
    Sketcher.Constraint("Horizontal", 1),
    Sketcher.Constraint("Vertical", 2),
    Sketcher.Constraint("Horizontal", 3),
    Sketcher.Constraint("DistanceY", 0, 2, 0, 1, Q("7 mm")),
    Sketcher.Constraint("DistanceX", 1, 1, 1, 2, Q("4.497862 mm")),
    Sketcher.Constraint("DistanceY", 0, 2, -1, 1, Q("54.742641 mm")),
    Sketcher.Constraint("DistanceX", 1, 2, -1, 1, Q("67.978521 mm")),
])
pad5 = doc.addObject("PartDesign::Pad", "Pad004")
body.addObject(pad5)
pad5.Profile = sketch12
pad5.Length = 1
doc.recompute()

chamfer = doc.addObject("PartDesign::Chamfer", "Chamfer")
body.addObject(chamfer)
chamfer.Base = (pad5, edges_at(pad5, [(-103.273, 15.5, -72.768)]))
chamfer.Size = 5
doc.recompute()

chamfer2 = doc.addObject("PartDesign::Chamfer", "Chamfer001")
body.addObject(chamfer2)
chamfer2.Base = (chamfer, edges_at(chamfer, [(-99.773, 15.5, -62.268), (-99.773, 13, -70.268)]))
chamfer2.Size = 1
doc.recompute()

chamfer3 = doc.addObject("PartDesign::Chamfer", "Chamfer002")
body.addObject(chamfer3)
chamfer3.Base = (chamfer2, edges_at(chamfer2, [(-81.773, 15.5, -72.768)]))
chamfer3.Size = 5
doc.recompute()

chamfer4 = doc.addObject("PartDesign::Chamfer", "Chamfer003")
body.addObject(chamfer4)
chamfer4.Base = (chamfer3, edges_at(chamfer3, [(-86.773, 13, -70.268), (-86.773, 15.5, -62.268)]))
chamfer4.Size = 1
doc.recompute()

chamfer5 = doc.addObject("PartDesign::Chamfer", "Chamfer004")
body.addObject(chamfer5)
chamfer5.Base = (chamfer4, edges_at(chamfer4, [(-76.773, 15.5, -62.268), (-76.773, 13, -70.268)]))
chamfer5.Size = 1
doc.recompute()

chamfer6 = doc.addObject("PartDesign::Chamfer", "Chamfer005")
body.addObject(chamfer6)
chamfer6.Base = (chamfer5, edges_at(chamfer5, [(-14.273, 15.5, -72.768), (-35.773, 15.5, -72.768), (-58.773, 15.5, -72.768)]))
chamfer6.Size = 5
doc.recompute()

chamfer7 = doc.addObject("PartDesign::Chamfer", "Chamfer006")
body.addObject(chamfer7)
chamfer7.Base = (chamfer6, edges_at(chamfer6, [
    (-17.773, 15.5, -62.268),
    (-40.773, 15.5, -62.268),
    (-30.773, 15.5, -62.268),
    (-53.773, 15.5, -62.268),
    (-17.773, 13, -70.268),
    (-30.773, 13, -70.268),
    (-40.773, 13, -70.268),
    (-53.773, 13, -70.268),
    (-63.773, 13, -70.268),
    (-63.773, 15.5, -62.268),
]))
chamfer7.Size = 1

doc.recompute()
